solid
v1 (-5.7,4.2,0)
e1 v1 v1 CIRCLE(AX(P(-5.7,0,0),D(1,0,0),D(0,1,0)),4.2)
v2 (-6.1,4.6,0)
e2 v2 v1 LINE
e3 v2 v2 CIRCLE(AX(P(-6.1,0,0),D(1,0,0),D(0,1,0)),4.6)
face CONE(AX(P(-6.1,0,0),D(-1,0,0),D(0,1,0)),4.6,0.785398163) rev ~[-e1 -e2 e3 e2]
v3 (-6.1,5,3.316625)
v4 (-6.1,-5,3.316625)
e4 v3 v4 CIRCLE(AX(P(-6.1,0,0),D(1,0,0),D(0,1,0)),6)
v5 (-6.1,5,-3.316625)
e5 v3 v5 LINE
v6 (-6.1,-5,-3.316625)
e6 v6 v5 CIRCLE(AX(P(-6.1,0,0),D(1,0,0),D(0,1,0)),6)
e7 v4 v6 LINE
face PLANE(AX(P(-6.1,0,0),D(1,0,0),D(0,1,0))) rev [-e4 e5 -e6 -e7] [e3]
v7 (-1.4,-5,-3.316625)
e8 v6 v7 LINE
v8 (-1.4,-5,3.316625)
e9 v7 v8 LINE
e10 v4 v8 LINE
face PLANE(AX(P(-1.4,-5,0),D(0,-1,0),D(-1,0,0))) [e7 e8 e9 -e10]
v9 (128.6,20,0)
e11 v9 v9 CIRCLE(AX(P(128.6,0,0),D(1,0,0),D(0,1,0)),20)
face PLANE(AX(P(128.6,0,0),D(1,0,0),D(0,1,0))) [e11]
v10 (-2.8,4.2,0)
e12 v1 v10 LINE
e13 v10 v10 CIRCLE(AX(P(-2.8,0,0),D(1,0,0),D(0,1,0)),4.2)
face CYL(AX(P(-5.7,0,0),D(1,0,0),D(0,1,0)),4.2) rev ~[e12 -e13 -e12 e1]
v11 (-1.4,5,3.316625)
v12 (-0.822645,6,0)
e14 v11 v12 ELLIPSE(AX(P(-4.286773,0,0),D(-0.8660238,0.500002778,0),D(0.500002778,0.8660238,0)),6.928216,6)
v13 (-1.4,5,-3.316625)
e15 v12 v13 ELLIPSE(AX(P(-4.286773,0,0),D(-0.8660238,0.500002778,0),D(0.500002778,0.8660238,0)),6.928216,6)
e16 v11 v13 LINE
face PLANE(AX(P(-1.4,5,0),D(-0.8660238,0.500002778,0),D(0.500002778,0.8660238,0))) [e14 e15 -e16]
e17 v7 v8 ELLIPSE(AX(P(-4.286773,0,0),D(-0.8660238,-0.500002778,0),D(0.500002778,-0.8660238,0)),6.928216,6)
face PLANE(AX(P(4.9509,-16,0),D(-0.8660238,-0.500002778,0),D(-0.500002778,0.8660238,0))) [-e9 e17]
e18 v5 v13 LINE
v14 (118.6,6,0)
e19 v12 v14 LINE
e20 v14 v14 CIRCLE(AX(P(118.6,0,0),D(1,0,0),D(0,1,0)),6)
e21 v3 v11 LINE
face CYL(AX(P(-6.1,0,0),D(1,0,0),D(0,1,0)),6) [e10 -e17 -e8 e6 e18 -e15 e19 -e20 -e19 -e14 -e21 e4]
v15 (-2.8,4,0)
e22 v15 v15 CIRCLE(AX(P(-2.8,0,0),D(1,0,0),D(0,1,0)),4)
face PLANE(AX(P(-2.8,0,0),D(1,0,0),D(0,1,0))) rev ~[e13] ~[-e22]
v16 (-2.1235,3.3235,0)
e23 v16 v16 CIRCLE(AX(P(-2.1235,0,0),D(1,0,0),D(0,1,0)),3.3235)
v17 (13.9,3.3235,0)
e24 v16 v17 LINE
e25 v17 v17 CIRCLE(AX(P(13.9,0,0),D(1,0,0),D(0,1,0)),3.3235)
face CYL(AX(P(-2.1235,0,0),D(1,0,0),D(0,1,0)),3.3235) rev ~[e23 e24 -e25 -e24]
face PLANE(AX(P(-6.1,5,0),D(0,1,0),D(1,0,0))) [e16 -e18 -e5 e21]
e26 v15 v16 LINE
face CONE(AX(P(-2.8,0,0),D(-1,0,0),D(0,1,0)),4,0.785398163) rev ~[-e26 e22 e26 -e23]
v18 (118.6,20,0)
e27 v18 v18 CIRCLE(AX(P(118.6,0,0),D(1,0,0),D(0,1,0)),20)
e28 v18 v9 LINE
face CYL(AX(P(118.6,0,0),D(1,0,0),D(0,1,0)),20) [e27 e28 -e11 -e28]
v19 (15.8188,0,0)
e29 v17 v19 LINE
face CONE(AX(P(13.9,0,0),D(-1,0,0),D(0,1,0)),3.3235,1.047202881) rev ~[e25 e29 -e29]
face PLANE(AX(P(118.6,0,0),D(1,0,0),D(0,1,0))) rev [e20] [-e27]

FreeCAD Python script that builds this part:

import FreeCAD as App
import Part
import Sketcher
Q = App.Units.Quantity


def add_polygon(sketch, points):
    """Adds a closed chain of lines whose ends are joined by coincident constraints."""
    first, n = sketch.GeometryCount, len(points)
    for a, b in zip(points, points[1:] + points[:1]):
        sketch.addGeometry(Part.LineSegment(App.Vector(*a, 0), App.Vector(*b, 0)), False)
    for i in range(n):
        sketch.addConstraint(Sketcher.Constraint("Coincident", first + i, 2, first + (i + 1) % n, 1))

doc = App.newDocument("Part")
body = doc.addObject("PartDesign::Body", "Body")

sketch1 = body.newObject("Sketcher::SketchObject", "Sketch")
sketch1.AttachmentSupport = (doc.getObject("XY_Plane"), [""])
sketch1.MapMode = "FlatFace"
add_polygon(sketch1, [(-6, 0), (129, 0), (129, 6), (-6, 6)])
sketch1.addConstraint(Sketcher.Constraint("Horizontal", 0))
sketch1.addConstraint(Sketcher.Constraint("Vertical", 1))
sketch1.addConstraint(Sketcher.Constraint("Horizontal", 2))
sketch1.addConstraint(Sketcher.Constraint("Vertical", 3))
sketch1.addConstraint(Sketcher.Constraint("PointOnObject", 0, 2, -1))
sketch1.addConstraint(Sketcher.Constraint("DistanceY", 1, 1, 1, 2, 6.0))
sketch1.addConstraint(Sketcher.Constraint("DistanceX", 0, 1, 0, 2, 134.7))
sketch1.addConstraint(Sketcher.Constraint("DistanceX", -1, 1, 0, 2, 128.6))
revolution = body.newObject("PartDesign::Revolution", "Revolution")
revolution.Profile = sketch1
revolution.ReferenceAxis = (sketch1, ["H_Axis"])
revolution.Angle = 360

sketch2 = body.newObject("Sketcher::SketchObject", "Sketch001")
sketch2.AttachmentSupport = (doc.getObject("XY_Plane"), [""])
sketch2.MapMode = "FlatFace"
add_polygon(sketch2, [(119, 0), (129, 0), (129, 20), (119, 20)])
sketch2.addConstraint(Sketcher.Constraint("Horizontal", 0))
sketch2.addConstraint(Sketcher.Constraint("Vertical", 1))
sketch2.addConstraint(Sketcher.Constraint("Horizontal", 2))
sketch2.addConstraint(Sketcher.Constraint("Vertical", 3))
sketch2.addConstraint(Sketcher.Constraint("PointOnObject", 0, 2, -1))
sketch2.addConstraint(Sketcher.Constraint("DistanceX", 0, 1, 0, 2, 10.0))
sketch2.addConstraint(Sketcher.Constraint("DistanceY", 1, 1, 1, 2, 20.0))
sketch2.addConstraint(Sketcher.Constraint("DistanceX", -1, 1, 0, 2, 128.6))
revolution2 = body.newObject("PartDesign::Revolution", "Revolution001")
revolution2.Profile = sketch2
revolution2.ReferenceAxis = (sketch2, ["H_Axis"])
revolution2.Angle = 360

sketch3 = body.newObject("Sketcher::SketchObject", "Sketch002")
sketch3.AttachmentSupport = (doc.getObject("XY_Plane"), [""])
sketch3.MapMode = "FlatFace"
add_polygon(sketch3, [(-36.2, 16), (-36.2, -16), (5, -16), (-1.4, -5), (-6.1, -5), (-6.1, -10), (-30.1, -10), (-30.1, 10), (-6.1, 10), (-6.1, 5), (-1.4, 5), (5, 16)])
sketch3.addConstraint(Sketcher.Constraint("Vertical", 0))
sketch3.addConstraint(Sketcher.Constraint("Horizontal", 1))
sketch3.addConstraint(Sketcher.Constraint("Horizontal", 3))
sketch3.addConstraint(Sketcher.Constraint("Vertical", 4))
sketch3.addConstraint(Sketcher.Constraint("Horizontal", 5))
sketch3.addConstraint(Sketcher.Constraint("Vertical", 6))
sketch3.addConstraint(Sketcher.Constraint("Horizontal", 7))
sketch3.addConstraint(Sketcher.Constraint("Vertical", 8))
sketch3.addConstraint(Sketcher.Constraint("Horizontal", 9))
sketch3.addConstraint(Sketcher.Constraint("Horizontal", 11))
sketch3.addConstraint(Sketcher.Constraint("Symmetric", 4, 2, 7, 2, -1))
sketch3.addConstraint(Sketcher.Constraint("Symmetric", 2, 2, 9, 2, -1))
sketch3.addConstraint(Sketcher.Constraint("Symmetric", 1, 2, 10, 2, -1))
sketch3.addConstraint(Sketcher.Constraint("DistanceX", 5, 2, 5, 1, 24.0))
sketch3.addConstraint(Sketcher.Constraint("DistanceY", 0, 2, 0, 1, 32.0))
sketch3.addConstraint(Sketcher.Constraint("DistanceY", 4, 2, 4, 1, 5.0))
sketch3.addConstraint(Sketcher.Constraint("DistanceY", 6, 1, 6, 2, 20.0))
sketch3.addConstraint(Sketcher.Constraint("Angle", 2, Q("120.0002 deg")))
sketch3.addConstraint(Sketcher.Constraint("DistanceX", 3, 2, 3, 1, 4.7))
sketch3.addConstraint(Sketcher.Constraint("DistanceX", 0, 2, -1, 1, 36.2))
sketch3.addConstraint(Sketcher.Constraint("DistanceX", 2, 2, -1, 1, 1.4))
pocket1 = body.newObject("PartDesign::Pocket", "Pocket")
pocket1.Profile = sketch3
pocket1.Length = 24
pocket1.Midplane = True

sketch4 = body.newObject("Sketcher::SketchObject", "Sketch003")
sketch4.AttachmentSupport = (doc.getObject("XY_Plane"), [""])
sketch4.MapMode = "FlatFace"
add_polygon(sketch4, [(-6.1, 0), (15.82, 0), (13.9, 3.32), (-2.12, 3.32), (-2.8, 4), (-2.8, 4.2), (-5.7, 4.2), (-6.1, 4.6)])
sketch4.addConstraint(Sketcher.Constraint("Horizontal", 0))
sketch4.addConstraint(Sketcher.Constraint("Horizontal", 2))
sketch4.addConstraint(Sketcher.Constraint("Vertical", 4))
sketch4.addConstraint(Sketcher.Constraint("Horizontal", 5))
sketch4.addConstraint(Sketcher.Constraint("Vertical", 7))
sketch4.addConstraint(Sketcher.Constraint("PointOnObject", 0, 2, -1))
sketch4.addConstraint(Sketcher.Constraint("Parallel", 3, 6))
sketch4.addConstraint(Sketcher.Constraint("Angle", 1, Q("119.9997 deg")))
sketch4.addConstraint(Sketcher.Constraint("Angle", 3, Q("135 deg")))
sketch4.addConstraint(Sketcher.Constraint("DistanceX", 5, 2, 5, 1, 2.9))
sketch4.addConstraint(Sketcher.Constraint("DistanceY", 4, 1, 4, 2, 0.2))
sketch4.addConstraint(Sketcher.Constraint("DistanceY", 7, 2, 7, 1, 4.6))
sketch4.addConstraint(Sketcher.Constraint("DistanceY", -1, 1, 3, 2, 4.0))
sketch4.addConstraint(Sketcher.Constraint("DistanceX", 6, 2, 1, 2, 20.0))
sketch4.addConstraint(Sketcher.Constraint("DistanceX", -1, 1, 1, 2, 13.9))
sketch4.addConstraint(Sketcher.Constraint("DistanceX", 0, 1, 0, 2, 21.9188))
groove = body.newObject("PartDesign::Groove", "Groove")
groove.Profile = sketch4
groove.ReferenceAxis = (sketch4, ["H_Axis"])
groove.Angle = 360

doc.recompute()
